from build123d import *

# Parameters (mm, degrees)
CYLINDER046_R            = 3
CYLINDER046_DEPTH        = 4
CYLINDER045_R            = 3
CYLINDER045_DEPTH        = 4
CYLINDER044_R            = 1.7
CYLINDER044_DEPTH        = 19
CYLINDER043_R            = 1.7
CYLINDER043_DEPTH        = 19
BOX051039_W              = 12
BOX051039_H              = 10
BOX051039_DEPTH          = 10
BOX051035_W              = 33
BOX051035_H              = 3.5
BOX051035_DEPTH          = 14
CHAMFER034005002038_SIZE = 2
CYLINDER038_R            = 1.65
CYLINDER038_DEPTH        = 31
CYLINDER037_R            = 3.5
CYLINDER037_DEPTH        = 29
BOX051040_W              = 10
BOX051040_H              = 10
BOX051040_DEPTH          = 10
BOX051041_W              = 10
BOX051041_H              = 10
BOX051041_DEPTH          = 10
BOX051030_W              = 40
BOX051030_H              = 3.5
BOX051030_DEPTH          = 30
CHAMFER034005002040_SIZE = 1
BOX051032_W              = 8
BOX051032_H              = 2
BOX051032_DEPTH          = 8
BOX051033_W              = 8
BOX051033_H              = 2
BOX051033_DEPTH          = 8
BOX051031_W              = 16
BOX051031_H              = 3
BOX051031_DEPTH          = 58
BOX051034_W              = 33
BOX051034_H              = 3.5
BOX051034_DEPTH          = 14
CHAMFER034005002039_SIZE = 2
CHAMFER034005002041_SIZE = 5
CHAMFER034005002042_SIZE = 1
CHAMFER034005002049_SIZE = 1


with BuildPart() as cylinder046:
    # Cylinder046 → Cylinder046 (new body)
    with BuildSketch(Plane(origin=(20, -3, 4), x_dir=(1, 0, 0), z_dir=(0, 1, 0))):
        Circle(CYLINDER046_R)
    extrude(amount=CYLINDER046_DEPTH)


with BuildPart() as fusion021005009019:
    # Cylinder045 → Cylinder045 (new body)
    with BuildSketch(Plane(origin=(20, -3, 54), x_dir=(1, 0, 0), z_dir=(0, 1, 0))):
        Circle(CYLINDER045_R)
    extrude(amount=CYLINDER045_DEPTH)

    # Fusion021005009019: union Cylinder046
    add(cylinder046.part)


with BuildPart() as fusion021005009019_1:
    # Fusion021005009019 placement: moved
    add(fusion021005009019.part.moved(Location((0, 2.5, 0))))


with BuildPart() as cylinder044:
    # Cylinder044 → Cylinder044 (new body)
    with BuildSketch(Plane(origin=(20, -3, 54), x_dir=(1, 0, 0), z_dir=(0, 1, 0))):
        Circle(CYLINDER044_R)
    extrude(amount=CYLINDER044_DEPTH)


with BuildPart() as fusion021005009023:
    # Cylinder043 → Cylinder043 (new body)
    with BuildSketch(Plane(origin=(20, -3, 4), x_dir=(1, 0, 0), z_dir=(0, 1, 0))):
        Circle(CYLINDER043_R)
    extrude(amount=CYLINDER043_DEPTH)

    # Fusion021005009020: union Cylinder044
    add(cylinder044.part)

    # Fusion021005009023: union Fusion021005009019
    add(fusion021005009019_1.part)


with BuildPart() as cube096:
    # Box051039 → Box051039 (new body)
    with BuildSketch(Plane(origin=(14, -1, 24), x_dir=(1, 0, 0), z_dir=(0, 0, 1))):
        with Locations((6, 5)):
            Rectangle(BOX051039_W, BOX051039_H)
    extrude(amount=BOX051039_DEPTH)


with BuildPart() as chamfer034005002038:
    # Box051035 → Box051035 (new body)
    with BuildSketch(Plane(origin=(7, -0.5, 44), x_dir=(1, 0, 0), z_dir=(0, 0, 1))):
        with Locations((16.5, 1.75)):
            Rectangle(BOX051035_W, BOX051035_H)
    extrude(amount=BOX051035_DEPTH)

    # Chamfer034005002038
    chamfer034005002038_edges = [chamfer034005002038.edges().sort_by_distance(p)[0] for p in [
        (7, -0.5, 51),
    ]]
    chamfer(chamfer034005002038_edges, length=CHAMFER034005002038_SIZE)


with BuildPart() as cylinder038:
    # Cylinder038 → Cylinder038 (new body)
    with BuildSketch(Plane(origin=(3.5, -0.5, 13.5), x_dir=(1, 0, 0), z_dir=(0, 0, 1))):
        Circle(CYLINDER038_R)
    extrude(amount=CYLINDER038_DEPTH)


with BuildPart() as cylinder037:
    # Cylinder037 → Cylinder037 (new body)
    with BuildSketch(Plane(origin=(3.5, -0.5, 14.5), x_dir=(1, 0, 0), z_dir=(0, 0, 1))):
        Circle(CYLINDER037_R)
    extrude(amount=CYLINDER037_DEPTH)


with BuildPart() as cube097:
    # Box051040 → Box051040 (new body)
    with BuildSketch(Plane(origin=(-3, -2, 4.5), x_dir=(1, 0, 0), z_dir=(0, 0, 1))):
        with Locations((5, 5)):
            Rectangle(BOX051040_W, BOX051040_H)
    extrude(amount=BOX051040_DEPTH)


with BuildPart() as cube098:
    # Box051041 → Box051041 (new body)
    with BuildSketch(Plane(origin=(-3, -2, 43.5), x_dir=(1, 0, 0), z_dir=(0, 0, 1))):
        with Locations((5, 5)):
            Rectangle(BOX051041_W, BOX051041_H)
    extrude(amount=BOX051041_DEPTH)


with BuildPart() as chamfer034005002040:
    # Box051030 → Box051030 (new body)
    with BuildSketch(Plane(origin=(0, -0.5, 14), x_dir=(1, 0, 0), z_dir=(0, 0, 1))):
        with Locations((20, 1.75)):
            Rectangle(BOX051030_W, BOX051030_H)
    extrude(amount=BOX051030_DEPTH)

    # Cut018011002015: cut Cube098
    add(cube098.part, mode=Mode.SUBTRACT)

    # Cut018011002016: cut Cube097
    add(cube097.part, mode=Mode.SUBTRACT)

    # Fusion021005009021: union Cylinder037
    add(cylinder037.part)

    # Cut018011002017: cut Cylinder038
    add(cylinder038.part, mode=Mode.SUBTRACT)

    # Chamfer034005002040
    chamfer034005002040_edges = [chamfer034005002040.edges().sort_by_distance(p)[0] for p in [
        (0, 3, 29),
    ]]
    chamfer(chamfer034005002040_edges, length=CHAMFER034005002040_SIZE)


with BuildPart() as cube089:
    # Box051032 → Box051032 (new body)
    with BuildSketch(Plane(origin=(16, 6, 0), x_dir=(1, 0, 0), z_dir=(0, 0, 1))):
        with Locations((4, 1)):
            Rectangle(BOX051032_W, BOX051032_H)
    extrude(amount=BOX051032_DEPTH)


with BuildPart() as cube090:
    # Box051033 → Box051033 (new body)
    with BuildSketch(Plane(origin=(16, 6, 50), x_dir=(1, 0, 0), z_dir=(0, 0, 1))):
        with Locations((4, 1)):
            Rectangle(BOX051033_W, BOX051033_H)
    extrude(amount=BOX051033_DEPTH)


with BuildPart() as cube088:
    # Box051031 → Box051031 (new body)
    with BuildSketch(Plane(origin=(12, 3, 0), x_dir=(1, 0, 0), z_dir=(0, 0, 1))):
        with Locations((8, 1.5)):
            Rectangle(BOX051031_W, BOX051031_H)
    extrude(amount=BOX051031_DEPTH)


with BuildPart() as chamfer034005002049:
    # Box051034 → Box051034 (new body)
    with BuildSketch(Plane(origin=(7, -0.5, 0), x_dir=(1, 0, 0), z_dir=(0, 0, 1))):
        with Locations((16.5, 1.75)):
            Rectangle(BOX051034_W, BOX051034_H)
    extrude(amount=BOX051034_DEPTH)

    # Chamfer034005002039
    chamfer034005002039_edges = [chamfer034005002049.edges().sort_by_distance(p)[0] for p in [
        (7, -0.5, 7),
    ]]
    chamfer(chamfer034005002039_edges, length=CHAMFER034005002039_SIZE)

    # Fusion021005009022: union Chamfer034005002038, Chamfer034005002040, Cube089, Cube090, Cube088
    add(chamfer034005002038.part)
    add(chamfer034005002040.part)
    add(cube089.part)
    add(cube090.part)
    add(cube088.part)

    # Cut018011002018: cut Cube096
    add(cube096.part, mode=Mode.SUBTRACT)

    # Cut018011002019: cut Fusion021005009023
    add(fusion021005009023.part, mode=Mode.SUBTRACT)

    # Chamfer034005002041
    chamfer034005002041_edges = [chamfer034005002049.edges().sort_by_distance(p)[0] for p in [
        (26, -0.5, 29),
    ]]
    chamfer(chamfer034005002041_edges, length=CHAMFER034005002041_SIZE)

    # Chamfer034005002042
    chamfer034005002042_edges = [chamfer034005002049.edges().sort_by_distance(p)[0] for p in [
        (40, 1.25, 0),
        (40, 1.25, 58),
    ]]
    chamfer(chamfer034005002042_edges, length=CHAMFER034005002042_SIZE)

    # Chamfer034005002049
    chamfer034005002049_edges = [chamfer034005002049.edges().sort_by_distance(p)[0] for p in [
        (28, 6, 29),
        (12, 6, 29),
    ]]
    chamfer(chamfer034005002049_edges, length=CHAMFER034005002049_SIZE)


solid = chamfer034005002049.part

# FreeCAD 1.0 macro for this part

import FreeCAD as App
import Part
import Sketcher


def edges_at(feature, points):
    """Names of the edges that pass closest to the given points."""
    edges = feature.Shape.Edges
    near = lambda p: min(range(len(edges)), key=lambda i: edges[i].distToShape(Part.Vertex(*p))[0])
    return sorted({f"Edge{near(p) + 1}" for p in points})

doc = App.newDocument("Part")
body = doc.addObject("PartDesign::Body", "Body")

# Sketch on XZ plane
sketch1 = body.newObject("Sketcher::SketchObject", "Sketch")
sketch1.AttachmentSupport = (doc.getObject("XZ_Plane"), [""])
sketch1.MapMode = "FlatFace"
sketch1.AttachmentOffset = App.Placement(App.Vector(0, 0, 3), App.Rotation())
sketch1.addGeometry(Part.Circle(App.Vector(20, 4, 0), App.Vector(0, 0, 1), 3), False)
sketch1.addConstraint(Sketcher.Constraint("Diameter", 0, 6.0))
sketch1.addConstraint(Sketcher.Constraint("DistanceX", -1, 1, 0, 3, 20.0))
sketch1.addConstraint(Sketcher.Constraint("DistanceY", -1, 1, 0, 3, 4.0))
pad1 = body.newObject("PartDesign::Pad", "Pad")
pad1.Profile = sketch1
pad1.Length = 4
pad1.Reversed = True
body2 = doc.addObject("PartDesign::Body", "Body001")
body2.AllowCompound = True

# Sketch on XZ plane
sketch2 = body2.newObject("Sketcher::SketchObject", "Sketch001")
sketch2.AttachmentSupport = (doc.getObject("XZ_Plane001"), [""])
sketch2.MapMode = "FlatFace"
sketch2.AttachmentOffset = App.Placement(App.Vector(0, 0, 3), App.Rotation())
sketch2.addGeometry(Part.Circle(App.Vector(20, 54, 0), App.Vector(0, 0, 1), 3), False)
sketch2.addConstraint(Sketcher.Constraint("Diameter", 0, 6.0))
sketch2.addConstraint(Sketcher.Constraint("DistanceX", -1, 1, 0, 3, 20.0))
sketch2.addConstraint(Sketcher.Constraint("DistanceY", -1, 1, 0, 3, 54.0))
pad2 = body2.newObject("PartDesign::Pad", "Pad001")
pad2.Profile = sketch2
pad2.Length = 4
pad2.Reversed = True
doc.recompute()

boolean = body2.newObject("PartDesign::Boolean", "Boolean")
boolean.Type = "Fuse"
boolean.addObjects([body])
body3 = doc.addObject("PartDesign::Body", "Body002")
body3.AllowCompound = True
doc.recompute()

body2.Placement = App.Placement(App.Vector(0, 2.5, 0), App.Rotation(App.Vector(0, 0, 1), 0))
boolean2 = body3.newObject("PartDesign::Boolean", "Boolean001")
boolean2.Type = "Fuse"
boolean2.addObjects([body2])
body4 = doc.addObject("PartDesign::Body", "Body003")

# Sketch on XZ plane
sketch3 = body4.newObject("Sketcher::SketchObject", "Sketch002")
sketch3.AttachmentSupport = (doc.getObject("XZ_Plane003"), [""])
sketch3.MapMode = "FlatFace"
sketch3.AttachmentOffset = App.Placement(App.Vector(0, 0, 3), App.Rotation())
sketch3.addGeometry(Part.Circle(App.Vector(20, 54, 0), App.Vector(0, 0, 1), 1.7), False)
sketch3.addConstraint(Sketcher.Constraint("Diameter", 0, 3.4))
sketch3.addConstraint(Sketcher.Constraint("DistanceX", -1, 1, 0, 3, 20.0))
sketch3.addConstraint(Sketcher.Constraint("DistanceY", -1, 1, 0, 3, 54.0))
pad3 = body4.newObject("PartDesign::Pad", "Pad002")
pad3.Profile = sketch3
pad3.Length = 19
pad3.Reversed = True
body5 = doc.addObject("PartDesign::Body", "Body004")
body5.AllowCompound = True

# Sketch on XZ plane
sketch4 = body5.newObject("Sketcher::SketchObject", "Sketch003")
sketch4.AttachmentSupport = (doc.getObject("XZ_Plane004"), [""])
sketch4.MapMode = "FlatFace"
sketch4.AttachmentOffset = App.Placement(App.Vector(0, 0, 3), App.Rotation())
sketch4.addGeometry(Part.Circle(App.Vector(20, 4, 0), App.Vector(0, 0, 1), 1.7), False)
sketch4.addConstraint(Sketcher.Constraint("Diameter", 0, 3.4))
sketch4.addConstraint(Sketcher.Constraint("DistanceX", -1, 1, 0, 3, 20.0))
sketch4.addConstraint(Sketcher.Constraint("DistanceY", -1, 1, 0, 3, 4.0))
pad4 = body5.newObject("PartDesign::Pad", "Pad003")
pad4.Profile = sketch4
pad4.Length = 19
pad4.Reversed = True
doc.recompute()

boolean3 = body5.newObject("PartDesign::Boolean", "Boolean002")
boolean3.Type = "Fuse"
boolean3.addObjects([body4])
doc.recompute()

boolean4 = body5.newObject("PartDesign::Boolean", "Boolean003")
boolean4.Type = "Fuse"
boolean4.addObjects([body3])
body6 = doc.addObject("PartDesign::Body", "Body005")

# Sketch on XY plane
sketch5 = body6.newObject("Sketcher::SketchObject", "Sketch004")
sketch5.AttachmentSupport = (doc.getObject("XY_Plane005"), [""])
sketch5.MapMode = "FlatFace"
sketch5.AttachmentOffset = App.Placement(App.Vector(0, 0, 24), App.Rotation())
sketch5.addGeometry(Part.LineSegment(App.Vector(14, 9, 0), App.Vector(14, -1, 0)), False)
sketch5.addGeometry(Part.LineSegment(App.Vector(14, -1, 0), App.Vector(26, -1, 0)), False)
sketch5.addGeometry(Part.LineSegment(App.Vector(26, -1, 0), App.Vector(26, 9, 0)), False)
sketch5.addGeometry(Part.LineSegment(App.Vector(26, 9, 0), App.Vector(14, 9, 0)), False)
sketch5.addConstraint(Sketcher.Constraint("Coincident", 0, 2, 1, 1))
sketch5.addConstraint(Sketcher.Constraint("Coincident", 1, 2, 2, 1))
sketch5.addConstraint(Sketcher.Constraint("Coincident", 2, 2, 3, 1))
sketch5.addConstraint(Sketcher.Constraint("Coincident", 3, 2, 0, 1))
sketch5.addConstraint(Sketcher.Constraint("Vertical", 0))
sketch5.addConstraint(Sketcher.Constraint("Horizontal", 1))
sketch5.addConstraint(Sketcher.Constraint("Vertical", 2))
sketch5.addConstraint(Sketcher.Constraint("Horizontal", 3))
sketch5.addConstraint(Sketcher.Constraint("DistanceX", 1, 1, 1, 2, 12.0))
sketch5.addConstraint(Sketcher.Constraint("DistanceY", 0, 2, 0, 1, 10.0))
sketch5.addConstraint(Sketcher.Constraint("DistanceX", -1, 1, 0, 2, 14.0))
sketch5.addConstraint(Sketcher.Constraint("DistanceY", 0, 2, -1, 1, 1.0))
pad5 = body6.newObject("PartDesign::Pad", "Pad004")
pad5.Profile = sketch5
pad5.Length = 10
body7 = doc.addObject("PartDesign::Body", "Body006")

# Sketch on XY plane
sketch6 = body7.newObject("Sketcher::SketchObject", "Sketch005")
sketch6.AttachmentSupport = (doc.getObject("XY_Plane006"), [""])
sketch6.MapMode = "FlatFace"
sketch6.AttachmentOffset = App.Placement(App.Vector(0, 0, 44), App.Rotation())
sketch6.addGeometry(Part.LineSegment(App.Vector(7, 3, 0), App.Vector(7, -0.5, 0)), False)
sketch6.addGeometry(Part.LineSegment(App.Vector(7, -0.5, 0), App.Vector(40, -0.5, 0)), False)
sketch6.addGeometry(Part.LineSegment(App.Vector(40, -0.5, 0), App.Vector(40, 3, 0)), False)
sketch6.addGeometry(Part.LineSegment(App.Vector(40, 3, 0), App.Vector(7, 3, 0)), False)
sketch6.addConstraint(Sketcher.Constraint("Coincident", 0, 2, 1, 1))
sketch6.addConstraint(Sketcher.Constraint("Coincident", 1, 2, 2, 1))
sketch6.addConstraint(Sketcher.Constraint("Coincident", 2, 2, 3, 1))
sketch6.addConstraint(Sketcher.Constraint("Coincident", 3, 2, 0, 1))
sketch6.addConstraint(Sketcher.Constraint("Vertical", 0))
sketch6.addConstraint(Sketcher.Constraint("Horizontal", 1))
sketch6.addConstraint(Sketcher.Constraint("Vertical", 2))
sketch6.addConstraint(Sketcher.Constraint("Horizontal", 3))
sketch6.addConstraint(Sketcher.Constraint("DistanceX", 1, 1, 1, 2, 33.0))
sketch6.addConstraint(Sketcher.Constraint("DistanceY", 0, 2, 0, 1, 3.5))
sketch6.addConstraint(Sketcher.Constraint("DistanceX", -1, 1, 0, 2, 7.0))
sketch6.addConstraint(Sketcher.Constraint("DistanceY", -1, 1, 2, 2, 3.0))
pad6 = body7.newObject("PartDesign::Pad", "Pad005")
pad6.Profile = sketch6
pad6.Length = 14
doc.recompute()

chamfer = body7.newObject("PartDesign::Chamfer", "Chamfer")
chamfer.Base = (pad6, edges_at(pad6, [(7, -0.5, 51)]))
chamfer.Size = 2
body8 = doc.addObject("PartDesign::Body", "Body007")

# Sketch on XY plane
sketch7 = body8.newObject("Sketcher::SketchObject", "Sketch006")
sketch7.AttachmentSupport = (doc.getObject("XY_Plane007"), [""])
sketch7.MapMode = "FlatFace"
sketch7.AttachmentOffset = App.Placement(App.Vector(0, 0, 13.5), App.Rotation())
sketch7.addGeometry(Part.Circle(App.Vector(3.5, -0.5, 0), App.Vector(0, 0, 1), 1.6), False)
sketch7.addConstraint(Sketcher.Constraint("Diameter", 0, 3.3))
sketch7.addConstraint(Sketcher.Constraint("DistanceX", -1, 1, 0, 3, 3.5))
sketch7.addConstraint(Sketcher.Constraint("DistanceY", 0, 3, -1, 1, 0.5))
pad7 = body8.newObject("PartDesign::Pad", "Pad006")
pad7.Profile = sketch7
pad7.Length = 31
body9 = doc.addObject("PartDesign::Body", "Body008")

# Sketch on XY plane
sketch8 = body9.newObject("Sketcher::SketchObject", "Sketch007")
sketch8.AttachmentSupport = (doc.getObject("XY_Plane008"), [""])
sketch8.MapMode = "FlatFace"
sketch8.AttachmentOffset = App.Placement(App.Vector(0, 0, 14.5), App.Rotation())
sketch8.addGeometry(Part.Circle(App.Vector(3.5, -0.5, 0), App.Vector(0, 0, 1), 3.5), False)
sketch8.addConstraint(Sketcher.Constraint("Diameter", 0, 7.0))
sketch8.addConstraint(Sketcher.Constraint("DistanceX", -1, 1, 0, 3, 3.5))
sketch8.addConstraint(Sketcher.Constraint("DistanceY", 0, 3, -1, 1, 0.5))
pad8 = body9.newObject("PartDesign::Pad", "Pad007")
pad8.Profile = sketch8
pad8.Length = 29
body10 = doc.addObject("PartDesign::Body", "Body009")

# Sketch on XY plane
sketch9 = body10.newObject("Sketcher::SketchObject", "Sketch008")
sketch9.AttachmentSupport = (doc.getObject("XY_Plane009"), [""])
sketch9.MapMode = "FlatFace"
sketch9.AttachmentOffset = App.Placement(App.Vector(0, 0, 4.5), App.Rotation())
sketch9.addGeometry(Part.LineSegment(App.Vector(-3, 8, 0), App.Vector(-3, -2, 0)), False)
sketch9.addGeometry(Part.LineSegment(App.Vector(-3, -2, 0), App.Vector(7, -2, 0)), False)
sketch9.addGeometry(Part.LineSegment(App.Vector(7, -2, 0), App.Vector(7, 8, 0)), False)
sketch9.addGeometry(Part.LineSegment(App.Vector(7, 8, 0), App.Vector(-3, 8, 0)), False)
sketch9.addConstraint(Sketcher.Constraint("Coincident", 0, 2, 1, 1))
sketch9.addConstraint(Sketcher.Constraint("Coincident", 1, 2, 2, 1))
sketch9.addConstraint(Sketcher.Constraint("Coincident", 2, 2, 3, 1))
sketch9.addConstraint(Sketcher.Constraint("Coincident", 3, 2, 0, 1))
sketch9.addConstraint(Sketcher.Constraint("Vertical", 0))
sketch9.addConstraint(Sketcher.Constraint("Horizontal", 1))
sketch9.addConstraint(Sketcher.Constraint("Vertical", 2))
sketch9.addConstraint(Sketcher.Constraint("Horizontal", 3))
sketch9.addConstraint(Sketcher.Constraint("Equal", 3, 0))
sketch9.addConstraint(Sketcher.Constraint("DistanceX", 1, 1, 1, 2, 10.0))
sketch9.addConstraint(Sketcher.Constraint("DistanceX", 0, 2, -1, 1, 3.0))
sketch9.addConstraint(Sketcher.Constraint("DistanceY", 0, 2, -1, 1, 2.0))
pad9 = body10.newObject("PartDesign::Pad", "Pad008")
pad9.Profile = sketch9
pad9.Length = 10
body11 = doc.addObject("PartDesign::Body", "Body010")

# Sketch on XY plane
sketch10 = body11.newObject("Sketcher::SketchObject", "Sketch009")
sketch10.AttachmentSupport = (doc.getObject("XY_Plane010"), [""])
sketch10.MapMode = "FlatFace"
sketch10.AttachmentOffset = App.Placement(App.Vector(0, 0, 43.5), App.Rotation())
sketch10.addGeometry(Part.LineSegment(App.Vector(-3, 8, 0), App.Vector(-3, -2, 0)), False)
sketch10.addGeometry(Part.LineSegment(App.Vector(-3, -2, 0), App.Vector(7, -2, 0)), False)
sketch10.addGeometry(Part.LineSegment(App.Vector(7, -2, 0), App.Vector(7, 8, 0)), False)
sketch10.addGeometry(Part.LineSegment(App.Vector(7, 8, 0), App.Vector(-3, 8, 0)), False)
sketch10.addConstraint(Sketcher.Constraint("Coincident", 0, 2, 1, 1))
sketch10.addConstraint(Sketcher.Constraint("Coincident", 1, 2, 2, 1))
sketch10.addConstraint(Sketcher.Constraint("Coincident", 2, 2, 3, 1))
sketch10.addConstraint(Sketcher.Constraint("Coincident", 3, 2, 0, 1))
sketch10.addConstraint(Sketcher.Constraint("Vertical", 0))
sketch10.addConstraint(Sketcher.Constraint("Horizontal", 1))
sketch10.addConstraint(Sketcher.Constraint("Vertical", 2))
sketch10.addConstraint(Sketcher.Constraint("Horizontal", 3))
sketch10.addConstraint(Sketcher.Constraint("Equal", 3, 0))
sketch10.addConstraint(Sketcher.Constraint("DistanceX", 1, 1, 1, 2, 10.0))
sketch10.addConstraint(Sketcher.Constraint("DistanceX", 0, 2, -1, 1, 3.0))
sketch10.addConstraint(Sketcher.Constraint("DistanceY", 0, 2, -1, 1, 2.0))
pad10 = body11.newObject("PartDesign::Pad", "Pad009")
pad10.Profile = sketch10
pad10.Length = 10
body12 = doc.addObject("PartDesign::Body", "Body011")

# Sketch on XY plane
sketch11 = body12.newObject("Sketcher::SketchObject", "Sketch010")
sketch11.AttachmentSupport = (doc.getObject("XY_Plane011"), [""])
sketch11.MapMode = "FlatFace"
sketch11.AttachmentOffset = App.Placement(App.Vector(0, 0, 14), App.Rotation())
sketch11.addGeometry(Part.LineSegment(App.Vector(0, 3, 0), App.Vector(0, -0.5, 0)), False)
sketch11.addGeometry(Part.LineSegment(App.Vector(0, -0.5, 0), App.Vector(40, -0.5, 0)), False)
sketch11.addGeometry(Part.LineSegment(App.Vector(40, -0.5, 0), App.Vector(40, 3, 0)), False)
sketch11.addGeometry(Part.LineSegment(App.Vector(40, 3, 0), App.Vector(0, 3, 0)), False)
sketch11.addConstraint(Sketcher.Constraint("Coincident", 0, 2, 1, 1))
sketch11.addConstraint(Sketcher.Constraint("Coincident", 1, 2, 2, 1))
sketch11.addConstraint(Sketcher.Constraint("Coincident", 2, 2, 3, 1))
sketch11.addConstraint(Sketcher.Constraint("Coincident", 3, 2, 0, 1))
sketch11.addConstraint(Sketcher.Constraint("Vertical", 0))
sketch11.addConstraint(Sketcher.Constraint("Horizontal", 1))
sketch11.addConstraint(Sketcher.Constraint("Vertical", 2))
sketch11.addConstraint(Sketcher.Constraint("Horizontal", 3))
sketch11.addConstraint(Sketcher.Constraint("PointOnObject", 0, 2, -2))
sketch11.addConstraint(Sketcher.Constraint("DistanceX", 1, 1, 1, 2, 40.0))
sketch11.addConstraint(Sketcher.Constraint("DistanceY", 0, 2, 0, 1, 3.5))
sketch11.addConstraint(Sketcher.Constraint("DistanceY", -1, 1, 2, 2, 3.0))
pad11 = body12.newObject("PartDesign::Pad", "Pad010")
pad11.Profile = sketch11
pad11.Length = 30
doc.recompute()

boolean5 = body12.newObject("PartDesign::Boolean", "Boolean004")
boolean5.Type = "Cut"
boolean5.addObjects([body11])
doc.recompute()

boolean6 = body12.newObject("PartDesign::Boolean", "Boolean005")
boolean6.Type = "Cut"
boolean6.addObjects([body10])
doc.recompute()

boolean7 = body12.newObject("PartDesign::Boolean", "Boolean006")
boolean7.Type = "Fuse"
boolean7.addObjects([body9])
doc.recompute()

boolean8 = body12.newObject("PartDesign::Boolean", "Boolean007")
boolean8.Type = "Cut"
boolean8.addObjects([body8])
doc.recompute()

chamfer2 = body12.newObject("PartDesign::Chamfer", "Chamfer001")
chamfer2.Base = (boolean8, edges_at(boolean8, [(0, 3, 29)]))
chamfer2.Size = 1
body13 = doc.addObject("PartDesign::Body", "Body012")

# Sketch on XY plane
sketch12 = body13.newObject("Sketcher::SketchObject", "Sketch011")
sketch12.AttachmentSupport = (doc.getObject("XY_Plane012"), [""])
sketch12.MapMode = "FlatFace"
sketch12.addGeometry(Part.LineSegment(App.Vector(16, 8, 0), App.Vector(16, 6, 0)), False)
sketch12.addGeometry(Part.LineSegment(App.Vector(16, 6, 0), App.Vector(24, 6, 0)), False)
sketch12.addGeometry(Part.LineSegment(App.Vector(24, 6, 0), App.Vector(24, 8, 0)), False)
sketch12.addGeometry(Part.LineSegment(App.Vector(24, 8, 0), App.Vector(16, 8, 0)), False)
sketch12.addConstraint(Sketcher.Constraint("Coincident", 0, 2, 1, 1))
sketch12.addConstraint(Sketcher.Constraint("Coincident", 1, 2, 2, 1))
sketch12.addConstraint(Sketcher.Constraint("Coincident", 2, 2, 3, 1))
sketch12.addConstraint(Sketcher.Constraint("Coincident", 3, 2, 0, 1))
sketch12.addConstraint(Sketcher.Constraint("Vertical", 0))
sketch12.addConstraint(Sketcher.Constraint("Horizontal", 1))
sketch12.addConstraint(Sketcher.Constraint("Vertical", 2))
sketch12.addConstraint(Sketcher.Constraint("Horizontal", 3))
sketch12.addConstraint(Sketcher.Constraint("DistanceX", 1, 1, 1, 2, 8.0))
sketch12.addConstraint(Sketcher.Constraint("DistanceY", 0, 2, 0, 1, 2.0))
sketch12.addConstraint(Sketcher.Constraint("DistanceX", -1, 1, 0, 2, 16.0))
sketch12.addConstraint(Sketcher.Constraint("DistanceY", -1, 1, 0, 2, 6.0))
pad12 = body13.newObject("PartDesign::Pad", "Pad011")
pad12.Profile = sketch12
pad12.Length = 8
body14 = doc.addObject("PartDesign::Body", "Body013")

# Sketch on XY plane
sketch13 = body14.newObject("Sketcher::SketchObject", "Sketch012")
sketch13.AttachmentSupport = (doc.getObject("XY_Plane013"), [""])
sketch13.MapMode = "FlatFace"
sketch13.AttachmentOffset = App.Placement(App.Vector(0, 0, 50), App.Rotation())
sketch13.addGeometry(Part.LineSegment(App.Vector(16, 8, 0), App.Vector(16, 6, 0)), False)
sketch13.addGeometry(Part.LineSegment(App.Vector(16, 6, 0), App.Vector(24, 6, 0)), False)
sketch13.addGeometry(Part.LineSegment(App.Vector(24, 6, 0), App.Vector(24, 8, 0)), False)
sketch13.addGeometry(Part.LineSegment(App.Vector(24, 8, 0), App.Vector(16, 8, 0)), False)
sketch13.addConstraint(Sketcher.Constraint("Coincident", 0, 2, 1, 1))
sketch13.addConstraint(Sketcher.Constraint("Coincident", 1, 2, 2, 1))
sketch13.addConstraint(Sketcher.Constraint("Coincident", 2, 2, 3, 1))
sketch13.addConstraint(Sketcher.Constraint("Coincident", 3, 2, 0, 1))
sketch13.addConstraint(Sketcher.Constraint("Vertical", 0))
sketch13.addConstraint(Sketcher.Constraint("Horizontal", 1))
sketch13.addConstraint(Sketcher.Constraint("Vertical", 2))
sketch13.addConstraint(Sketcher.Constraint("Horizontal", 3))
sketch13.addConstraint(Sketcher.Constraint("DistanceX", 1, 1, 1, 2, 8.0))
sketch13.addConstraint(Sketcher.Constraint("DistanceY", 0, 2, 0, 1, 2.0))
sketch13.addConstraint(Sketcher.Constraint("DistanceX", -1, 1, 0, 2, 16.0))
sketch13.addConstraint(Sketcher.Constraint("DistanceY", -1, 1, 0, 2, 6.0))
pad13 = body14.newObject("PartDesign::Pad", "Pad012")
pad13.Profile = sketch13
pad13.Length = 8
body15 = doc.addObject("PartDesign::Body", "Body014")

# Sketch on XY plane
sketch14 = body15.newObject("Sketcher::SketchObject", "Sketch013")
sketch14.AttachmentSupport = (doc.getObject("XY_Plane014"), [""])
sketch14.MapMode = "FlatFace"
sketch14.addGeometry(Part.LineSegment(App.Vector(12, 6, 0), App.Vector(12, 3, 0)), False)
sketch14.addGeometry(Part.LineSegment(App.Vector(12, 3, 0), App.Vector(28, 3, 0)), False)
sketch14.addGeometry(Part.LineSegment(App.Vector(28, 3, 0), App.Vector(28, 6, 0)), False)
sketch14.addGeometry(Part.LineSegment(App.Vector(28, 6, 0), App.Vector(12, 6, 0)), False)
sketch14.addConstraint(Sketcher.Constraint("Coincident", 0, 2, 1, 1))
sketch14.addConstraint(Sketcher.Constraint("Coincident", 1, 2, 2, 1))
sketch14.addConstraint(Sketcher.Constraint("Coincident", 2, 2, 3, 1))
sketch14.addConstraint(Sketcher.Constraint("Coincident", 3, 2, 0, 1))
sketch14.addConstraint(Sketcher.Constraint("Vertical", 0))
sketch14.addConstraint(Sketcher.Constraint("Horizontal", 1))
sketch14.addConstraint(Sketcher.Constraint("Vertical", 2))
sketch14.addConstraint(Sketcher.Constraint("Horizontal", 3))
sketch14.addConstraint(Sketcher.Constraint("DistanceX", 1, 1, 1, 2, 16.0))
sketch14.addConstraint(Sketcher.Constraint("DistanceY", 0, 2, 0, 1, 3.0))
sketch14.addConstraint(Sketcher.Constraint("DistanceX", -1, 1, 0, 2, 12.0))
sketch14.addConstraint(Sketcher.Constraint("DistanceY", -1, 1, 0, 2, 3.0))
pad14 = body15.newObject("PartDesign::Pad", "Pad013")
pad14.Profile = sketch14
pad14.Length = 58
body16 = doc.addObject("PartDesign::Body", "Body015")
body16.AllowCompound = True

# Sketch on XY plane
sketch15 = body16.newObject("Sketcher::SketchObject", "Sketch014")
sketch15.AttachmentSupport = (doc.getObject("XY_Plane015"), [""])
sketch15.MapMode = "FlatFace"
sketch15.addGeometry(Part.LineSegment(App.Vector(7, 3, 0), App.Vector(7, -0.5, 0)), False)
sketch15.addGeometry(Part.LineSegment(App.Vector(7, -0.5, 0), App.Vector(40, -0.5, 0)), False)
sketch15.addGeometry(Part.LineSegment(App.Vector(40, -0.5, 0), App.Vector(40, 3, 0)), False)
sketch15.addGeometry(Part.LineSegment(App.Vector(40, 3, 0), App.Vector(7, 3, 0)), False)
sketch15.addConstraint(Sketcher.Constraint("Coincident", 0, 2, 1, 1))
sketch15.addConstraint(Sketcher.Constraint("Coincident", 1, 2, 2, 1))
sketch15.addConstraint(Sketcher.Constraint("Coincident", 2, 2, 3, 1))
sketch15.addConstraint(Sketcher.Constraint("Coincident", 3, 2, 0, 1))
sketch15.addConstraint(Sketcher.Constraint("Vertical", 0))
sketch15.addConstraint(Sketcher.Constraint("Horizontal", 1))
sketch15.addConstraint(Sketcher.Constraint("Vertical", 2))
sketch15.addConstraint(Sketcher.Constraint("Horizontal", 3))
sketch15.addConstraint(Sketcher.Constraint("DistanceX", 1, 1, 1, 2, 33.0))
sketch15.addConstraint(Sketcher.Constraint("DistanceY", 0, 2, 0, 1, 3.5))
sketch15.addConstraint(Sketcher.Constraint("DistanceX", -1, 1, 0, 2, 7.0))
sketch15.addConstraint(Sketcher.Constraint("DistanceY", -1, 1, 2, 2, 3.0))
pad15 = body16.newObject("PartDesign::Pad", "Pad014")
pad15.Profile = sketch15
pad15.Length = 14
doc.recompute()

chamfer3 = body16.newObject("PartDesign::Chamfer", "Chamfer002")
chamfer3.Base = (pad15, edges_at(pad15, [(7, -0.5, 7)]))
chamfer3.Size = 2
doc.recompute()

boolean9 = body16.newObject("PartDesign::Boolean", "Boolean008")
boolean9.Type = "Fuse"
boolean9.addObjects([body7])
doc.recompute()

boolean10 = body16.newObject("PartDesign::Boolean", "Boolean009")
boolean10.Type = "Fuse"
boolean10.addObjects([body12])
doc.recompute()

boolean11 = body16.newObject("PartDesign::Boolean", "Boolean010")
boolean11.Type = "Fuse"
boolean11.addObjects([body13])
doc.recompute()

boolean12 = body16.newObject("PartDesign::Boolean", "Boolean011")
boolean12.Type = "Fuse"
boolean12.addObjects([body14])
doc.recompute()

boolean13 = body16.newObject("PartDesign::Boolean", "Boolean012")
boolean13.Type = "Fuse"
boolean13.addObjects([body15])
doc.recompute()

boolean14 = body16.newObject("PartDesign::Boolean", "Boolean013")
boolean14.Type = "Cut"
boolean14.addObjects([body6])
doc.recompute()

boolean15 = body16.newObject("PartDesign::Boolean", "Boolean014")
boolean15.Type = "Cut"
boolean15.addObjects([body5])
doc.recompute()

chamfer4 = body16.newObject("PartDesign::Chamfer", "Chamfer003")
chamfer4.Base = (boolean15, edges_at(boolean15, [(26, -0.5, 29)]))
chamfer4.Size = 5
doc.recompute()

chamfer5 = body16.newObject("PartDesign::Chamfer", "Chamfer004")
chamfer5.Base = (chamfer4, edges_at(chamfer4, [(40, 1.25, 0), (40, 1.25, 58)]))
chamfer5.Size = 1
doc.recompute()

chamfer6 = body16.newObject("PartDesign::Chamfer", "Chamfer005")
chamfer6.Base = (chamfer5, edges_at(chamfer5, [(28, 6, 29), (12, 6, 29)]))
chamfer6.Size = 1

doc.recompute()
